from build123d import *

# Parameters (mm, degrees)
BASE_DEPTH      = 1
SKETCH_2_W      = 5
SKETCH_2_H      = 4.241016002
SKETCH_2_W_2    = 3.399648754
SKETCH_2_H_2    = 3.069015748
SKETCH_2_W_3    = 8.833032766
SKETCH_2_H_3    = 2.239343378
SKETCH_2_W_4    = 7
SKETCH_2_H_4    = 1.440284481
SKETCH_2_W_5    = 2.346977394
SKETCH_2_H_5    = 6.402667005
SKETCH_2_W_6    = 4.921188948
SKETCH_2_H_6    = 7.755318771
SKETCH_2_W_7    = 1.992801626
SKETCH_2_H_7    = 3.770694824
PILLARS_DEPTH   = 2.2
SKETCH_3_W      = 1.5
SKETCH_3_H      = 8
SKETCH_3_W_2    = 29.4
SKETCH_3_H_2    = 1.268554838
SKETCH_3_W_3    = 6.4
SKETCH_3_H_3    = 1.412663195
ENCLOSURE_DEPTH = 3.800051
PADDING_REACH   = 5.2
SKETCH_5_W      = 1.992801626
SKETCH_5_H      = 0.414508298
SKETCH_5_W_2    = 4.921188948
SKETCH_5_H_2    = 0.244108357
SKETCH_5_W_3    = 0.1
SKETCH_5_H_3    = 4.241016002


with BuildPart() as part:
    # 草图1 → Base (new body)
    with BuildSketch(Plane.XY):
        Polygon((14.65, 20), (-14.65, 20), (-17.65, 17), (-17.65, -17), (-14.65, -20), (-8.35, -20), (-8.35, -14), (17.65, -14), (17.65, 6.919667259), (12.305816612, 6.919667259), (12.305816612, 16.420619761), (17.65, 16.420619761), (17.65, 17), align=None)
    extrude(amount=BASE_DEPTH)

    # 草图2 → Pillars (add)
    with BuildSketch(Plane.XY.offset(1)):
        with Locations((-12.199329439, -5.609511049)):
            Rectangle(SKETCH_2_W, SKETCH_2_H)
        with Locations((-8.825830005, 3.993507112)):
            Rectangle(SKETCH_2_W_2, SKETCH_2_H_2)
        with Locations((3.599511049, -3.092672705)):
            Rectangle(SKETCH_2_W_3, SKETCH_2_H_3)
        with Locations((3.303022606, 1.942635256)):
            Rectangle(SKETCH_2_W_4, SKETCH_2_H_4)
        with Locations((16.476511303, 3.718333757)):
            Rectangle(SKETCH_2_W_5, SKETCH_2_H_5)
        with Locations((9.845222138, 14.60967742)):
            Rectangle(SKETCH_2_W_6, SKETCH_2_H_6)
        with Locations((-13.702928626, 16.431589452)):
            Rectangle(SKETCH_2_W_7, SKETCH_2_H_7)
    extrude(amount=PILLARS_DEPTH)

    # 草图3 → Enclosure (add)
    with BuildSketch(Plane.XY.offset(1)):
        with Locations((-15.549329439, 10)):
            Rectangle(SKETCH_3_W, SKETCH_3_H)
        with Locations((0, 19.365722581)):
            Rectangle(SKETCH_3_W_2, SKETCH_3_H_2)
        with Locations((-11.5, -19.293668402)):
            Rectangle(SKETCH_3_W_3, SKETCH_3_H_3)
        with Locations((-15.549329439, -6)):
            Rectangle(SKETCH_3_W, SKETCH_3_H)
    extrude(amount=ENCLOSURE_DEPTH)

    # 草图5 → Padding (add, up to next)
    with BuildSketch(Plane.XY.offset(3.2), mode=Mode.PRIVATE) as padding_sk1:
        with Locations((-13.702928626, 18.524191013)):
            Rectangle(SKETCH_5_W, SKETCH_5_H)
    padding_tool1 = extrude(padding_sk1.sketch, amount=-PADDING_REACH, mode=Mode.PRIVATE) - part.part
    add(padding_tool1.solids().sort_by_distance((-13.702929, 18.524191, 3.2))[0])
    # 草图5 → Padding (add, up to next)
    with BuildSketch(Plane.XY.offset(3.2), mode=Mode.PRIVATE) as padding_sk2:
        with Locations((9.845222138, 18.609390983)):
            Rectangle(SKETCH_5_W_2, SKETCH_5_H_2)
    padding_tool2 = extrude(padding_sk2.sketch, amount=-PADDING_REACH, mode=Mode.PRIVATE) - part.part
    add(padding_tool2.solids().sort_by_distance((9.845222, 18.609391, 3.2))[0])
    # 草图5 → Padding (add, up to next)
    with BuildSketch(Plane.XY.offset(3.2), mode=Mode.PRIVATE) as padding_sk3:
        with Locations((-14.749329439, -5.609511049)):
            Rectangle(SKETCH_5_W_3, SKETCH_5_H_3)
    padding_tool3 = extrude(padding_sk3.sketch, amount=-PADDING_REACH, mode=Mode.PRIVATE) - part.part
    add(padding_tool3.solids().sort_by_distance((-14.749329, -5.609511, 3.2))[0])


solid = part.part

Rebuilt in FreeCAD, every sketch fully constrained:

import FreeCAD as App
import Part
import Sketcher
from FreeCAD import Vector

doc = App.newDocument("Part")
body = doc.addObject("PartDesign::Body", "Body")

sketch1 = doc.addObject("Sketcher::SketchObject", "Sketch")
body.addObject(sketch1)
sketch1.AttachmentSupport = (doc.XY_Plane, [""])
sketch1.MapMode = "FlatFace"
sketch1.addGeometry([
    Part.LineSegment(Vector(14.7, 20, 0), Vector(-14.7, 20, 0)),
    Part.LineSegment(Vector(-14.7, 20, 0), Vector(-17.6, 17, 0)),
    Part.LineSegment(Vector(-17.6, 17, 0), Vector(-17.6, -17, 0)),
    Part.LineSegment(Vector(-17.6, -17, 0), Vector(-14.7, -20, 0)),
    Part.LineSegment(Vector(-14.7, -20, 0), Vector(-8.3, -20, 0)),
    Part.LineSegment(Vector(-8.3, -20, 0), Vector(-8.3, -14, 0)),
    Part.LineSegment(Vector(-8.3, -14, 0), Vector(17.6, -14, 0)),
    Part.LineSegment(Vector(17.6, -14, 0), Vector(17.6, 6.9, 0)),
    Part.LineSegment(Vector(17.6, 6.9, 0), Vector(12.3, 6.9, 0)),
    Part.LineSegment(Vector(12.3, 6.9, 0), Vector(12.3, 16.4, 0)),
    Part.LineSegment(Vector(12.3, 16.4, 0), Vector(17.6, 16.4, 0)),
    Part.LineSegment(Vector(17.6, 16.4, 0), Vector(17.6, 17, 0)),
    Part.LineSegment(Vector(17.6, 17, 0), Vector(14.7, 20, 0)),
], False)
sketch1.addConstraint([
    Sketcher.Constraint("Coincident", 0, 2, 1, 1),
    Sketcher.Constraint("Coincident", 1, 2, 2, 1),
    Sketcher.Constraint("Coincident", 2, 2, 3, 1),
    Sketcher.Constraint("Coincident", 3, 2, 4, 1),
    Sketcher.Constraint("Coincident", 4, 2, 5, 1),
    Sketcher.Constraint("Coincident", 5, 2, 6, 1),
    Sketcher.Constraint("Coincident", 6, 2, 7, 1),
    Sketcher.Constraint("Coincident", 7, 2, 8, 1),
    Sketcher.Constraint("Coincident", 8, 2, 9, 1),
    Sketcher.Constraint("Coincident", 9, 2, 10, 1),
    Sketcher.Constraint("Coincident", 10, 2, 11, 1),
    Sketcher.Constraint("Coincident", 11, 2, 12, 1),
    Sketcher.Constraint("Coincident", 12, 2, 0, 1),
    Sketcher.Constraint("Horizontal", 0),
    Sketcher.Constraint("Vertical", 2),
    Sketcher.Constraint("Horizontal", 4),
    Sketcher.Constraint("Vertical", 5),
    Sketcher.Constraint("Horizontal", 6),
    Sketcher.Constraint("Vertical", 7),
    Sketcher.Constraint("Horizontal", 8),
    Sketcher.Constraint("Vertical", 9),
    Sketcher.Constraint("Horizontal", 10),
    Sketcher.Constraint("Vertical", 11),
    Sketcher.Constraint("Symmetric", 2, 2, 11, 2, -1, 1),
    Sketcher.Constraint("Symmetric", 3, 2, 12, 2, -1, 1),
    Sketcher.Constraint("Perpendicular", 1, 3),
    Sketcher.Constraint("Horizontal", 1, 2, 11, 2),
    Sketcher.Constraint("Vertical", 0, 2, 3, 2),
    Sketcher.Constraint("Vertical", 7, 2, 10, 2),
    Sketcher.Constraint("DistanceX", 6, 1, 6, 2, 26.0),
    Sketcher.Constraint("DistanceY", 2, 2, 2, 1, 34.0),
    Sketcher.Constraint("DistanceY", 5, 1, 5, 2, 6.0),
    Sketcher.Constraint("DistanceX", 0, 2, 0, 1, 29.3),
    Sketcher.Constraint("DistanceX", 4, 1, 4, 2, 6.3),
    Sketcher.Constraint("DistanceY", 11, 1, 11, 2, 0.57938),
    Sketcher.Constraint("DistanceX", 8, 2, 8, 1, 5.344183),
    Sketcher.Constraint("DistanceY", 7, 1, 7, 2, 20.919667),
])
pad1 = doc.addObject("PartDesign::Pad", "Pad")
body.addObject(pad1)
pad1.Profile = sketch1
pad1.Length = 1

sketch2 = doc.addObject("Sketcher::SketchObject", "Sketch001")
body.addObject(sketch2)
sketch2.AttachmentSupport = (doc.XY_Plane, [""])
sketch2.MapMode = "FlatFace"
sketch2.AttachmentOffset = App.Placement(Vector(0, 0, 1), App.Rotation())
sketch2.addGeometry([
    Part.LineSegment(Vector(-14.7, -3.5, 0), Vector(-14.7, -7.7, 0)),
    Part.LineSegment(Vector(-14.7, -7.7, 0), Vector(-9.7, -7.7, 0)),
    Part.LineSegment(Vector(-9.7, -7.7, 0), Vector(-9.7, -3.5, 0)),
    Part.LineSegment(Vector(-9.7, -3.5, 0), Vector(-14.7, -3.5, 0)),
    Part.LineSegment(Vector(-10.5, 5.5, 0), Vector(-10.5, 2.5, 0)),
    Part.LineSegment(Vector(-10.5, 2.5, 0), Vector(-7.1, 2.5, 0)),
    Part.LineSegment(Vector(-7.1, 2.5, 0), Vector(-7.1, 5.5, 0)),
    Part.LineSegment(Vector(-7.1, 5.5, 0), Vector(-10.5, 5.5, 0)),
    Part.LineSegment(Vector(-0.8, -2, 0), Vector(-0.8, -4.2, 0)),
    Part.LineSegment(Vector(-0.8, -4.2, 0), Vector(8, -4.2, 0)),
    Part.LineSegment(Vector(8, -4.2, 0), Vector(8, -2, 0)),
    Part.LineSegment(Vector(8, -2, 0), Vector(-0.8, -2, 0)),
    Part.LineSegment(Vector(-0.2, 2.7, 0), Vector(-0.2, 1.2, 0)),
    Part.LineSegment(Vector(-0.2, 1.2, 0), Vector(6.8, 1.2, 0)),
    Part.LineSegment(Vector(6.8, 1.2, 0), Vector(6.8, 2.7, 0)),
    Part.LineSegment(Vector(6.8, 2.7, 0), Vector(-0.2, 2.7, 0)),
    Part.LineSegment(Vector(15.3, 6.9, 0), Vector(15.3, 0.5, 0)),
    Part.LineSegment(Vector(15.3, 0.5, 0), Vector(17.6, 0.5, 0)),
    Part.LineSegment(Vector(17.6, 0.5, 0), Vector(17.6, 6.9, 0)),
    Part.LineSegment(Vector(17.6, 6.9, 0), Vector(15.3, 6.9, 0)),
    Part.LineSegment(Vector(7.4, 18.5, 0), Vector(7.4, 10.7, 0)),
    Part.LineSegment(Vector(7.4, 10.7, 0), Vector(12.3, 10.7, 0)),
    Part.LineSegment(Vector(12.3, 10.7, 0), Vector(12.3, 18.5, 0)),
    Part.LineSegment(Vector(12.3, 18.5, 0), Vector(7.4, 18.5, 0)),
    Part.LineSegment(Vector(-14.7, 18.3, 0), Vector(-14.7, 14.5, 0)),
    Part.LineSegment(Vector(-14.7, 14.5, 0), Vector(-12.7, 14.5, 0)),
    Part.LineSegment(Vector(-12.7, 14.5, 0), Vector(-12.7, 18.3, 0)),
    Part.LineSegment(Vector(-12.7, 18.3, 0), Vector(-14.7, 18.3, 0)),
], False)
sketch2.addConstraint([
    Sketcher.Constraint("Coincident", 0, 2, 1, 1),
    Sketcher.Constraint("Coincident", 1, 2, 2, 1),
    Sketcher.Constraint("Coincident", 2, 2, 3, 1),
    Sketcher.Constraint("Coincident", 3, 2, 0, 1),
    Sketcher.Constraint("Coincident", 4, 2, 5, 1),
    Sketcher.Constraint("Coincident", 5, 2, 6, 1),
    Sketcher.Constraint("Coincident", 6, 2, 7, 1),
    Sketcher.Constraint("Coincident", 7, 2, 4, 1),
    Sketcher.Constraint("Coincident", 8, 2, 9, 1),
    Sketcher.Constraint("Coincident", 9, 2, 10, 1),
    Sketcher.Constraint("Coincident", 10, 2, 11, 1),
    Sketcher.Constraint("Coincident", 11, 2, 8, 1),
    Sketcher.Constraint("Coincident", 12, 2, 13, 1),
    Sketcher.Constraint("Coincident", 13, 2, 14, 1),
    Sketcher.Constraint("Coincident", 14, 2, 15, 1),
    Sketcher.Constraint("Coincident", 15, 2, 12, 1),
    Sketcher.Constraint("Coincident", 16, 2, 17, 1),
    Sketcher.Constraint("Coincident", 17, 2, 18, 1),
    Sketcher.Constraint("Coincident", 18, 2, 19, 1),
    Sketcher.Constraint("Coincident", 19, 2, 16, 1),
    Sketcher.Constraint("Coincident", 20, 2, 21, 1),
    Sketcher.Constraint("Coincident", 21, 2, 22, 1),
    Sketcher.Constraint("Coincident", 22, 2, 23, 1),
    Sketcher.Constraint("Coincident", 23, 2, 20, 1),
    Sketcher.Constraint("Coincident", 24, 2, 25, 1),
    Sketcher.Constraint("Coincident", 25, 2, 26, 1),
    Sketcher.Constraint("Coincident", 26, 2, 27, 1),
    Sketcher.Constraint("Coincident", 27, 2, 24, 1),
    Sketcher.Constraint("Vertical", 0),
    Sketcher.Constraint("Horizontal", 1),
    Sketcher.Constraint("Vertical", 2),
    Sketcher.Constraint("Horizontal", 3),
    Sketcher.Constraint("Vertical", 4),
    Sketcher.Constraint("Horizontal", 5),
    Sketcher.Constraint("Vertical", 6),
    Sketcher.Constraint("Horizontal", 7),
    Sketcher.Constraint("Vertical", 8),
    Sketcher.Constraint("Horizontal", 9),
    Sketcher.Constraint("Vertical", 10),
    Sketcher.Constraint("Horizontal", 11),
    Sketcher.Constraint("Vertical", 12),
    Sketcher.Constraint("Horizontal", 13),
    Sketcher.Constraint("Vertical", 14),
    Sketcher.Constraint("Horizontal", 15),
    Sketcher.Constraint("Vertical", 16),
    Sketcher.Constraint("Horizontal", 17),
    Sketcher.Constraint("Vertical", 18),
    Sketcher.Constraint("Horizontal", 19),
    Sketcher.Constraint("Vertical", 20),
    Sketcher.Constraint("Horizontal", 21),
    Sketcher.Constraint("Vertical", 22),
    Sketcher.Constraint("Horizontal", 23),
    Sketcher.Constraint("Vertical", 24),
    Sketcher.Constraint("Horizontal", 25),
    Sketcher.Constraint("Vertical", 26),
    Sketcher.Constraint("Horizontal", 27),
    Sketcher.Constraint("Vertical", 3, 2, 24, 2),
    Sketcher.Constraint("DistanceX", 1, 1, 1, 2, 5.0),
    Sketcher.Constraint("DistanceX", 13, 1, 13, 2, 7.0),
    Sketcher.Constraint("DistanceX", 13, 2, 16, 2, 8.5),
    Sketcher.Constraint("DistanceX", -1, 1, 17, 2, 17.65),
    Sketcher.Constraint("DistanceY", 10, 2, 16, 2, 2.490001),
    Sketcher.Constraint("DistanceX", 25, 1, 25, 2, 1.992802),
    Sketcher.Constraint("DistanceY", -1, 1, 4, 2, 2.458999),
    Sketcher.Constraint("DistanceY", 10, 2, -1, 1, 1.973001),
    Sketcher.Constraint("DistanceX", 5, 2, 8, 2, 6.309),
    Sketcher.Constraint("DistanceX", 5, 1, 5, 2, 3.399649),
    Sketcher.Constraint("DistanceX", 21, 1, 21, 2, 4.921189),
    Sketcher.Constraint("DistanceY", 20, 2, 20, 1, 7.755319),
    Sketcher.Constraint("DistanceX", 9, 1, 9, 2, 8.833033),
    Sketcher.Constraint("DistanceX", 17, 1, 17, 2, 2.346977),
    Sketcher.Constraint("DistanceY", 0, 2, 0, 1, 4.241016),
    Sketcher.Constraint("DistanceY", 4, 2, 4, 1, 3.069016),
    Sketcher.Constraint("DistanceY", 8, 2, 8, 1, 2.239343),
    Sketcher.Constraint("DistanceY", 12, 2, 12, 1, 1.440284),
    Sketcher.Constraint("DistanceY", 16, 2, 16, 1, 6.402667),
    Sketcher.Constraint("DistanceY", 24, 2, 24, 1, 3.770695),
    Sketcher.Constraint("DistanceX", 0, 2, -1, 1, 14.699329),
    Sketcher.Constraint("DistanceY", 0, 2, -1, 1, 7.730019),
    Sketcher.Constraint("DistanceY", -1, 1, 20, 2, 10.732018),
    Sketcher.Constraint("DistanceX", 5, 2, 12, 2, 6.929028),
    Sketcher.Constraint("DistanceY", 12, 2, 6, 2, 4.305522),
    Sketcher.Constraint("DistanceY", 7, 2, 26, 2, 12.788922),
    Sketcher.Constraint("DistanceX", -1, 1, 20, 2, 7.384628),
])
pad2 = doc.addObject("PartDesign::Pad", "Pad001")
body.addObject(pad2)
pad2.Profile = sketch2
pad2.Length = 2.2

sketch3 = doc.addObject("Sketcher::SketchObject", "Sketch002")
body.addObject(sketch3)
sketch3.AttachmentSupport = (doc.XY_Plane, [""])
sketch3.MapMode = "FlatFace"
sketch3.AttachmentOffset = App.Placement(Vector(0, 0, 1), App.Rotation())
sketch3.addGeometry([
    Part.LineSegment(Vector(-16.3, 14, 0), Vector(-16.3, 6, 0)),
    Part.LineSegment(Vector(-16.3, 6, 0), Vector(-14.8, 6, 0)),
    Part.LineSegment(Vector(-14.8, 6, 0), Vector(-14.8, 14, 0)),
    Part.LineSegment(Vector(-14.8, 14, 0), Vector(-16.3, 14, 0)),
    Part.LineSegment(Vector(-14.7, 20, 0), Vector(-14.7, 18.7, 0)),
    Part.LineSegment(Vector(-14.7, 18.7, 0), Vector(14.7, 18.7, 0)),
    Part.LineSegment(Vector(14.7, 18.7, 0), Vector(14.7, 20, 0)),
    Part.LineSegment(Vector(14.7, 20, 0), Vector(-14.7, 20, 0)),
    Part.LineSegment(Vector(-14.7, -18.6, 0), Vector(-14.7, -20, 0)),
    Part.LineSegment(Vector(-14.7, -20, 0), Vector(-8.3, -20, 0)),
    Part.LineSegment(Vector(-8.3, -20, 0), Vector(-8.3, -18.6, 0)),
    Part.LineSegment(Vector(-8.3, -18.6, 0), Vector(-14.7, -18.6, 0)),
    Part.LineSegment(Vector(-16.3, -2, 0), Vector(-16.3, -10, 0)),
    Part.LineSegment(Vector(-16.3, -10, 0), Vector(-14.8, -10, 0)),
    Part.LineSegment(Vector(-14.8, -10, 0), Vector(-14.8, -2, 0)),
    Part.LineSegment(Vector(-14.8, -2, 0), Vector(-16.3, -2, 0)),
], False)
sketch3.addConstraint([
    Sketcher.Constraint("Coincident", 0, 2, 1, 1),
    Sketcher.Constraint("Coincident", 1, 2, 2, 1),
    Sketcher.Constraint("Coincident", 2, 2, 3, 1),
    Sketcher.Constraint("Coincident", 3, 2, 0, 1),
    Sketcher.Constraint("Coincident", 4, 2, 5, 1),
    Sketcher.Constraint("Coincident", 5, 2, 6, 1),
    Sketcher.Constraint("Coincident", 6, 2, 7, 1),
    Sketcher.Constraint("Coincident", 7, 2, 4, 1),
    Sketcher.Constraint("Coincident", 8, 2, 9, 1),
    Sketcher.Constraint("Coincident", 9, 2, 10, 1),
    Sketcher.Constraint("Coincident", 10, 2, 11, 1),
    Sketcher.Constraint("Coincident", 11, 2, 8, 1),
    Sketcher.Constraint("Coincident", 12, 2, 13, 1),
    Sketcher.Constraint("Coincident", 13, 2, 14, 1),
    Sketcher.Constraint("Coincident", 14, 2, 15, 1),
    Sketcher.Constraint("Coincident", 15, 2, 12, 1),
    Sketcher.Constraint("Vertical", 0),
    Sketcher.Constraint("Horizontal", 1),
    Sketcher.Constraint("Vertical", 2),
    Sketcher.Constraint("Horizontal", 3),
    Sketcher.Constraint("Vertical", 4),
    Sketcher.Constraint("Horizontal", 5),
    Sketcher.Constraint("Vertical", 6),
    Sketcher.Constraint("Horizontal", 7),
    Sketcher.Constraint("Vertical", 8),
    Sketcher.Constraint("Horizontal", 9),
    Sketcher.Constraint("Vertical", 10),
    Sketcher.Constraint("Horizontal", 11),
    Sketcher.Constraint("Vertical", 12),
    Sketcher.Constraint("Horizontal", 13),
    Sketcher.Constraint("Vertical", 14),
    Sketcher.Constraint("Horizontal", 15),
    Sketcher.Constraint("Symmetric", 6, 2, 8, 2, -1, 1),
    Sketcher.Constraint("Vertical", 7, 2, 8, 2),
    Sketcher.Constraint("Vertical", 3, 2, 12, 2),
    Sketcher.Constraint("Vertical", 2, 2, 13, 2),
    Sketcher.Constraint("Equal", 2, 12),
    Sketcher.Constraint("DistanceY", 0, 2, 0, 1, 8.0),
    Sketcher.Constraint("DistanceX", 1, 1, 1, 2, 1.5),
    Sketcher.Constraint("DistanceX", 5, 1, 5, 2, 29.4),
    Sketcher.Constraint("DistanceX", 9, 1, 9, 2, 6.4),
    Sketcher.Constraint("DistanceY", -1, 1, 0, 2, 6.0),
    Sketcher.Constraint("DistanceY", -1, 1, 6, 2, 20.0),
    Sketcher.Constraint("DistanceY", 12, 2, -1, 1, 10.0),
    Sketcher.Constraint("DistanceY", 4, 2, 4, 1, 1.268555),
    Sketcher.Constraint("DistanceY", 8, 2, 8, 1, 1.412663),
    Sketcher.Constraint("DistanceX", 0, 2, -1, 1, 16.299329),
])
pad3 = doc.addObject("PartDesign::Pad", "Pad002")
body.addObject(pad3)
pad3.Profile = sketch3
pad3.Length = 3.800051

sketch4 = doc.addObject("Sketcher::SketchObject", "Sketch003")
body.addObject(sketch4)
sketch4.AttachmentSupport = (doc.XY_Plane, [""])
sketch4.MapMode = "FlatFace"
sketch4.AttachmentOffset = App.Placement(Vector(0, 0, 3.2), App.Rotation())
sketch4.addGeometry([
    Part.LineSegment(Vector(-14.7, 18.73, 0), Vector(-14.7, 18.32, 0)),
    Part.LineSegment(Vector(-14.7, 18.32, 0), Vector(-12.71, 18.32, 0)),
    Part.LineSegment(Vector(-12.71, 18.32, 0), Vector(-12.71, 18.73, 0)),
    Part.LineSegment(Vector(-12.71, 18.73, 0), Vector(-14.7, 18.73, 0)),
], False)
sketch4.addConstraint([
    Sketcher.Constraint("Coincident", 0, 2, 1, 1),
    Sketcher.Constraint("Coincident", 1, 2, 2, 1),
    Sketcher.Constraint("Coincident", 2, 2, 3, 1),
    Sketcher.Constraint("Coincident", 3, 2, 0, 1),
    Sketcher.Constraint("Vertical", 0),
    Sketcher.Constraint("Horizontal", 1),
    Sketcher.Constraint("Vertical", 2),
    Sketcher.Constraint("Horizontal", 3),
    Sketcher.Constraint("DistanceX", 1, 1, 1, 2, 1.992802),
    Sketcher.Constraint("DistanceY", 0, 2, 0, 1, 0.414508),
    Sketcher.Constraint("DistanceX", 0, 2, -1, 1, 14.699329),
    Sketcher.Constraint("DistanceY", -1, 1, 0, 2, 18.316937),
])
pad4 = doc.addObject("PartDesign::Pad", "Pad003")
body.addObject(pad4)
pad4.Profile = sketch4
pad4.Type = "UpToFirst"
pad4.Reversed = True

sketch5 = doc.addObject("Sketcher::SketchObject", "Sketch004")
body.addObject(sketch5)
sketch5.AttachmentSupport = (doc.XY_Plane, [""])
sketch5.MapMode = "FlatFace"
sketch5.AttachmentOffset = App.Placement(Vector(0, 0, 3.2), App.Rotation())
sketch5.addGeometry([
    Part.LineSegment(Vector(7.38, 18.73, 0), Vector(7.38, 18.49, 0)),
    Part.LineSegment(Vector(7.38, 18.49, 0), Vector(12.31, 18.49, 0)),
    Part.LineSegment(Vector(12.31, 18.49, 0), Vector(12.31, 18.73, 0)),
    Part.LineSegment(Vector(12.31, 18.73, 0), Vector(7.38, 18.73, 0)),
], False)
sketch5.addConstraint([
    Sketcher.Constraint("Coincident", 0, 2, 1, 1),
    Sketcher.Constraint("Coincident", 1, 2, 2, 1),
    Sketcher.Constraint("Coincident", 2, 2, 3, 1),
    Sketcher.Constraint("Coincident", 3, 2, 0, 1),
    Sketcher.Constraint("Vertical", 0),
    Sketcher.Constraint("Horizontal", 1),
    Sketcher.Constraint("Vertical", 2),
    Sketcher.Constraint("Horizontal", 3),
    Sketcher.Constraint("DistanceX", 1, 1, 1, 2, 4.921189),
    Sketcher.Constraint("DistanceY", 0, 2, 0, 1, 0.244108),
    Sketcher.Constraint("DistanceX", -1, 1, 0, 2, 7.384628),
    Sketcher.Constraint("DistanceY", -1, 1, 0, 2, 18.487337),
])
pad5 = doc.addObject("PartDesign::Pad", "Pad004")
body.addObject(pad5)
pad5.Profile = sketch5
pad5.Type = "UpToFirst"
pad5.Reversed = True

sketch6 = doc.addObject("Sketcher::SketchObject", "Sketch005")
body.addObject(sketch6)
sketch6.AttachmentSupport = (doc.XY_Plane, [""])
sketch6.MapMode = "FlatFace"
sketch6.AttachmentOffset = App.Placement(Vector(0, 0, 3.2), App.Rotation())
sketch6.addGeometry([
    Part.LineSegment(Vector(-14.8, -3.49, 0), Vector(-14.8, -7.73, 0)),
    Part.LineSegment(Vector(-14.8, -7.73, 0), Vector(-14.7, -7.73, 0)),
    Part.LineSegment(Vector(-14.7, -7.73, 0), Vector(-14.7, -3.49, 0)),
    Part.LineSegment(Vector(-14.7, -3.49, 0), Vector(-14.8, -3.49, 0)),
], False)
sketch6.addConstraint([
    Sketcher.Constraint("Coincident", 0, 2, 1, 1),
    Sketcher.Constraint("Coincident", 1, 2, 2, 1),
    Sketcher.Constraint("Coincident", 2, 2, 3, 1),
    Sketcher.Constraint("Coincident", 3, 2, 0, 1),
    Sketcher.Constraint("Vertical", 0),
    Sketcher.Constraint("Horizontal", 1),
    Sketcher.Constraint("Vertical", 2),
    Sketcher.Constraint("Horizontal", 3),
    Sketcher.Constraint("DistanceX", 1, 1, 1, 2, 0.1),
    Sketcher.Constraint("DistanceY", 0, 2, 0, 1, 4.241016),
    Sketcher.Constraint("DistanceX", 0, 2, -1, 1, 14.799329),
    Sketcher.Constraint("DistanceY", 0, 2, -1, 1, 7.730019),
])
pad6 = doc.addObject("PartDesign::Pad", "Pad005")
body.addObject(pad6)
pad6.Profile = sketch6
pad6.Type = "UpToFirst"
pad6.Reversed = True

doc.recompute()
